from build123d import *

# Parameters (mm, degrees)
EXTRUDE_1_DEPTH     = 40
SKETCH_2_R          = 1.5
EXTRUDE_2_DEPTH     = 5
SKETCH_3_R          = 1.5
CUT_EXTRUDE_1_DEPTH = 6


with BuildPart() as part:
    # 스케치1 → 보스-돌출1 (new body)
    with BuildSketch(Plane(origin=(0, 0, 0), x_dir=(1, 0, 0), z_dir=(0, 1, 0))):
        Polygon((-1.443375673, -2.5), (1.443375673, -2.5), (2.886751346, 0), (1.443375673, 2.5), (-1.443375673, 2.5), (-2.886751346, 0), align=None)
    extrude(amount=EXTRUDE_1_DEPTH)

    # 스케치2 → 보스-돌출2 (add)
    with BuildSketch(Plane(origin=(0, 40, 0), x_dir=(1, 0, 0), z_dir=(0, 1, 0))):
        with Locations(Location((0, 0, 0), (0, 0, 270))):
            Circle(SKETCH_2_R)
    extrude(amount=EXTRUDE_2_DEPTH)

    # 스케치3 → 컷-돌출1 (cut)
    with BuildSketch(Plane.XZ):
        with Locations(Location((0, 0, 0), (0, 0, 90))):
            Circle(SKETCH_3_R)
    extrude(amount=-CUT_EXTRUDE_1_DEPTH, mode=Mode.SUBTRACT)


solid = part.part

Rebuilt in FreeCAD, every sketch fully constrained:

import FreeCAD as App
import Part
import Sketcher
from FreeCAD import Vector
Q = App.Units.Quantity


def add_polygon(sketch, points):
    """Adds a closed chain of lines whose ends are joined by coincident constraints."""
    first, n = sketch.GeometryCount, len(points)
    for a, b in zip(points, points[1:] + points[:1]):
        sketch.addGeometry(Part.LineSegment(App.Vector(*a, 0), App.Vector(*b, 0)), False)
    for i in range(n):
        sketch.addConstraint(Sketcher.Constraint("Coincident", first + i, 2, first + (i + 1) % n, 1))

doc = App.newDocument("Part")
body = doc.addObject("PartDesign::Body", "Body")

# Sketch on XZ plane
sketch1 = body.newObject("Sketcher::SketchObject", "Sketch")
sketch1.AttachmentSupport = (doc.getObject("XZ_Plane"), [""])
sketch1.MapMode = "FlatFace"
add_polygon(sketch1, [(-1.4, 2.5), (1.4, 2.5), (2.9, 0), (1.4, -2.5), (-1.4, -2.5), (-2.9, 0)])  # lines 0-5
sketch1.addConstraint([
    Sketcher.Constraint("Horizontal", 0),
    Sketcher.Constraint("Horizontal", 3),
    Sketcher.Constraint("Symmetric", 0, 2, 3, 2, -1, 1),
    Sketcher.Constraint("Symmetric", 1, 2, 4, 2, -1, 1),
    Sketcher.Constraint("PointOnObject", 1, 2, -1),
    Sketcher.Constraint("Parallel", 2, 5),
    Sketcher.Constraint("Vertical", 0, 2, 2, 2),
    Sketcher.Constraint("Angle", 1, Q("-60 deg")),
    Sketcher.Constraint("DistanceY", 2, 2, 0, 2, Q("5 mm")),
    Sketcher.Constraint("DistanceX", 0, 1, 0, 2, Q("2.886751 mm")),
])
pad1 = body.newObject("PartDesign::Pad", "Pad")
pad1.Profile = sketch1
pad1.Length = 40
pad1.Reversed = True

# Sketch on XZ plane
sketch2 = body.newObject("Sketcher::SketchObject", "Sketch001")
sketch2.AttachmentSupport = (doc.getObject("XZ_Plane"), [""])
sketch2.MapMode = "FlatFace"
sketch2.AttachmentOffset = App.Placement(Vector(0, 0, -40), App.Rotation())
sketch2.addGeometry(Part.Circle(Vector(0, 0, 0), Vector(0, 0, 1), 1.5), False)
sketch2.addConstraint([
    Sketcher.Constraint("Coincident", 0, 3, -1, 1),
    Sketcher.Constraint("Diameter", 0, Q("3 mm")),
])
pad2 = body.newObject("PartDesign::Pad", "Pad001")
pad2.Profile = sketch2
pad2.Length = 5
pad2.Reversed = True

# Sketch on XZ plane
sketch3 = body.newObject("Sketcher::SketchObject", "Sketch002")
sketch3.AttachmentSupport = (doc.getObject("XZ_Plane"), [""])
sketch3.MapMode = "FlatFace"
sketch3.addGeometry(Part.Circle(Vector(0, 0, 0), Vector(0, 0, 1), 1.5), False)
sketch3.addConstraint([
    Sketcher.Constraint("Coincident", 0, 3, -1, 1),
    Sketcher.Constraint("Diameter", 0, Q("3 mm")),
])
pocket1 = body.newObject("PartDesign::Pocket", "Pocket")
pocket1.Profile = sketch3
pocket1.Length = 6

doc.recompute()
